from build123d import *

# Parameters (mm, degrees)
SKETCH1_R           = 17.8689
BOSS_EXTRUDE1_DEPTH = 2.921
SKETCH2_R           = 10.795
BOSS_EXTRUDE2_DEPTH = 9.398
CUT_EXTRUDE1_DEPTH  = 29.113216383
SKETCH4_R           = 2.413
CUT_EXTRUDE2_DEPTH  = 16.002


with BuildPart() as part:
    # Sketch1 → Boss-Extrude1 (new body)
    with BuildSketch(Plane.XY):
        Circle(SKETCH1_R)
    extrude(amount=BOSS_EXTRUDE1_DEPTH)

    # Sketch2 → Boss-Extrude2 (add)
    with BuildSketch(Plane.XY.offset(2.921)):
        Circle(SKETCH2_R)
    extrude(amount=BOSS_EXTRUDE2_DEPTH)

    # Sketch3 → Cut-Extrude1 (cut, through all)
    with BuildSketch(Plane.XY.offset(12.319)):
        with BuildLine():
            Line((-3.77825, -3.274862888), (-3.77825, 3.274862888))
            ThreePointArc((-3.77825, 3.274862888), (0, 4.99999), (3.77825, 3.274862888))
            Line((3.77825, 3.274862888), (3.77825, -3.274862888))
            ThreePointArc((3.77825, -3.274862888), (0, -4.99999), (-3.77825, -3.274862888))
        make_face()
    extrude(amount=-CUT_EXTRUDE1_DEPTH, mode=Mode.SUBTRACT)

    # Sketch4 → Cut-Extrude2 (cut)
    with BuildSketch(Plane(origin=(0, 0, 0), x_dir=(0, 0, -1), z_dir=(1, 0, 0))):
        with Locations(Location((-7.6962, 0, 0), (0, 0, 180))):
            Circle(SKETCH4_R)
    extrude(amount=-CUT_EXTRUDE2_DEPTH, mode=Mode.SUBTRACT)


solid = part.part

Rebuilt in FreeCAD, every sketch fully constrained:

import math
import FreeCAD as App
import Part
import Sketcher
Q = App.Units.Quantity

doc = App.newDocument("Part")
body = doc.addObject("PartDesign::Body", "Body")

sketch1 = doc.addObject("Sketcher::SketchObject", "Sketch")
body.addObject(sketch1)
sketch1.AttachmentSupport = (doc.XY_Plane, [""])
sketch1.MapMode = "FlatFace"
sketch1.addGeometry(Part.Circle(App.Vector(0, 0, 0), App.Vector(0, 0, 1), 18), False)
sketch1.addConstraint([
    Sketcher.Constraint("Coincident", 0, 3, -1, 1),
    Sketcher.Constraint("Diameter", 0, Q("1.407 in")),
])
pad1 = doc.addObject("PartDesign::Pad", "Pad")
body.addObject(pad1)
pad1.Profile = sketch1
pad1.Length = Q("0.115 in")

sketch2 = doc.addObject("Sketcher::SketchObject", "Sketch001")
body.addObject(sketch2)
sketch2.AttachmentSupport = (doc.XY_Plane, [""])
sketch2.MapMode = "FlatFace"
sketch2.AttachmentOffset = App.Placement(App.Vector(0, 0, 0.115 * 25.4), App.Rotation())
sketch2.addGeometry(Part.Circle(App.Vector(0, 0, 0), App.Vector(0, 0, 1), 11), False)
sketch2.addConstraint([
    Sketcher.Constraint("Coincident", 0, 3, -1, 1),
    Sketcher.Constraint("Diameter", 0, Q("0.85 in")),
])
pad2 = doc.addObject("PartDesign::Pad", "Pad001")
body.addObject(pad2)
pad2.Profile = sketch2
pad2.Length = Q("0.37 in")

sketch3 = doc.addObject("Sketcher::SketchObject", "Sketch002")
body.addObject(sketch3)
sketch3.AttachmentSupport = (doc.XY_Plane, [""])
sketch3.MapMode = "FlatFace"
sketch3.AttachmentOffset = App.Placement(App.Vector(0, 0, 0.485 * 25.4), App.Rotation())
sketch3.addGeometry([
    Part.LineSegment(App.Vector(-3.8, 3.3, 0), App.Vector(-3.8, -3.3, 0)),
    Part.ArcOfCircle(Part.Circle(App.Vector(0, 0, 0), App.Vector(0, 0, 1), 5), math.radians(-139), math.radians(-41)),
    Part.LineSegment(App.Vector(3.8, -3.3, 0), App.Vector(3.8, 3.3, 0)),
    Part.ArcOfCircle(Part.Circle(App.Vector(0, 0, 0), App.Vector(0, 0, 1), 5), math.radians(41), math.radians(139)),
], False)
sketch3.addConstraint([
    Sketcher.Constraint("Coincident", 0, 2, 1, 1),
    Sketcher.Constraint("Coincident", 1, 2, 2, 1),
    Sketcher.Constraint("Coincident", 2, 2, 3, 1),
    Sketcher.Constraint("Coincident", 3, 2, 0, 1),
    Sketcher.Constraint("Vertical", 0),
    Sketcher.Constraint("Vertical", 2),
    Sketcher.Constraint("Coincident", 1, 3, -1, 1),
    Sketcher.Constraint("Coincident", 3, 3, -1, 1),
    Sketcher.Constraint("Equal", 1, 3),
    Sketcher.Constraint("Horizontal", 0, 2, 1, 2),
    Sketcher.Constraint("Radius", 1, Q("4.99999 mm")),
    Sketcher.Constraint("DistanceX", 0, 2, 1, 2, Q("0.2975 in")),
])
pocket1 = doc.addObject("PartDesign::Pocket", "Pocket")
body.addObject(pocket1)
pocket1.Profile = sketch3
pocket1.Type = "ThroughAll"

sketch4 = doc.addObject("Sketcher::SketchObject", "Sketch003")
body.addObject(sketch4)
sketch4.AttachmentSupport = (doc.YZ_Plane, [""])
sketch4.MapMode = "FlatFace"
sketch4.addGeometry(Part.Circle(App.Vector(0, 7.7, 0), App.Vector(0, 0, 1), 2.4), False)
sketch4.addConstraint([
    Sketcher.Constraint("PointOnObject", 0, 3, -2),
    Sketcher.Constraint("Diameter", 0, Q("0.19 in")),
    Sketcher.Constraint("DistanceY", -1, 1, 0, 3, Q("0.303 in")),
])
pocket2 = doc.addObject("PartDesign::Pocket", "Pocket001")
body.addObject(pocket2)
pocket2.Profile = sketch4
pocket2.Length = Q("0.63 in")

doc.recompute()
